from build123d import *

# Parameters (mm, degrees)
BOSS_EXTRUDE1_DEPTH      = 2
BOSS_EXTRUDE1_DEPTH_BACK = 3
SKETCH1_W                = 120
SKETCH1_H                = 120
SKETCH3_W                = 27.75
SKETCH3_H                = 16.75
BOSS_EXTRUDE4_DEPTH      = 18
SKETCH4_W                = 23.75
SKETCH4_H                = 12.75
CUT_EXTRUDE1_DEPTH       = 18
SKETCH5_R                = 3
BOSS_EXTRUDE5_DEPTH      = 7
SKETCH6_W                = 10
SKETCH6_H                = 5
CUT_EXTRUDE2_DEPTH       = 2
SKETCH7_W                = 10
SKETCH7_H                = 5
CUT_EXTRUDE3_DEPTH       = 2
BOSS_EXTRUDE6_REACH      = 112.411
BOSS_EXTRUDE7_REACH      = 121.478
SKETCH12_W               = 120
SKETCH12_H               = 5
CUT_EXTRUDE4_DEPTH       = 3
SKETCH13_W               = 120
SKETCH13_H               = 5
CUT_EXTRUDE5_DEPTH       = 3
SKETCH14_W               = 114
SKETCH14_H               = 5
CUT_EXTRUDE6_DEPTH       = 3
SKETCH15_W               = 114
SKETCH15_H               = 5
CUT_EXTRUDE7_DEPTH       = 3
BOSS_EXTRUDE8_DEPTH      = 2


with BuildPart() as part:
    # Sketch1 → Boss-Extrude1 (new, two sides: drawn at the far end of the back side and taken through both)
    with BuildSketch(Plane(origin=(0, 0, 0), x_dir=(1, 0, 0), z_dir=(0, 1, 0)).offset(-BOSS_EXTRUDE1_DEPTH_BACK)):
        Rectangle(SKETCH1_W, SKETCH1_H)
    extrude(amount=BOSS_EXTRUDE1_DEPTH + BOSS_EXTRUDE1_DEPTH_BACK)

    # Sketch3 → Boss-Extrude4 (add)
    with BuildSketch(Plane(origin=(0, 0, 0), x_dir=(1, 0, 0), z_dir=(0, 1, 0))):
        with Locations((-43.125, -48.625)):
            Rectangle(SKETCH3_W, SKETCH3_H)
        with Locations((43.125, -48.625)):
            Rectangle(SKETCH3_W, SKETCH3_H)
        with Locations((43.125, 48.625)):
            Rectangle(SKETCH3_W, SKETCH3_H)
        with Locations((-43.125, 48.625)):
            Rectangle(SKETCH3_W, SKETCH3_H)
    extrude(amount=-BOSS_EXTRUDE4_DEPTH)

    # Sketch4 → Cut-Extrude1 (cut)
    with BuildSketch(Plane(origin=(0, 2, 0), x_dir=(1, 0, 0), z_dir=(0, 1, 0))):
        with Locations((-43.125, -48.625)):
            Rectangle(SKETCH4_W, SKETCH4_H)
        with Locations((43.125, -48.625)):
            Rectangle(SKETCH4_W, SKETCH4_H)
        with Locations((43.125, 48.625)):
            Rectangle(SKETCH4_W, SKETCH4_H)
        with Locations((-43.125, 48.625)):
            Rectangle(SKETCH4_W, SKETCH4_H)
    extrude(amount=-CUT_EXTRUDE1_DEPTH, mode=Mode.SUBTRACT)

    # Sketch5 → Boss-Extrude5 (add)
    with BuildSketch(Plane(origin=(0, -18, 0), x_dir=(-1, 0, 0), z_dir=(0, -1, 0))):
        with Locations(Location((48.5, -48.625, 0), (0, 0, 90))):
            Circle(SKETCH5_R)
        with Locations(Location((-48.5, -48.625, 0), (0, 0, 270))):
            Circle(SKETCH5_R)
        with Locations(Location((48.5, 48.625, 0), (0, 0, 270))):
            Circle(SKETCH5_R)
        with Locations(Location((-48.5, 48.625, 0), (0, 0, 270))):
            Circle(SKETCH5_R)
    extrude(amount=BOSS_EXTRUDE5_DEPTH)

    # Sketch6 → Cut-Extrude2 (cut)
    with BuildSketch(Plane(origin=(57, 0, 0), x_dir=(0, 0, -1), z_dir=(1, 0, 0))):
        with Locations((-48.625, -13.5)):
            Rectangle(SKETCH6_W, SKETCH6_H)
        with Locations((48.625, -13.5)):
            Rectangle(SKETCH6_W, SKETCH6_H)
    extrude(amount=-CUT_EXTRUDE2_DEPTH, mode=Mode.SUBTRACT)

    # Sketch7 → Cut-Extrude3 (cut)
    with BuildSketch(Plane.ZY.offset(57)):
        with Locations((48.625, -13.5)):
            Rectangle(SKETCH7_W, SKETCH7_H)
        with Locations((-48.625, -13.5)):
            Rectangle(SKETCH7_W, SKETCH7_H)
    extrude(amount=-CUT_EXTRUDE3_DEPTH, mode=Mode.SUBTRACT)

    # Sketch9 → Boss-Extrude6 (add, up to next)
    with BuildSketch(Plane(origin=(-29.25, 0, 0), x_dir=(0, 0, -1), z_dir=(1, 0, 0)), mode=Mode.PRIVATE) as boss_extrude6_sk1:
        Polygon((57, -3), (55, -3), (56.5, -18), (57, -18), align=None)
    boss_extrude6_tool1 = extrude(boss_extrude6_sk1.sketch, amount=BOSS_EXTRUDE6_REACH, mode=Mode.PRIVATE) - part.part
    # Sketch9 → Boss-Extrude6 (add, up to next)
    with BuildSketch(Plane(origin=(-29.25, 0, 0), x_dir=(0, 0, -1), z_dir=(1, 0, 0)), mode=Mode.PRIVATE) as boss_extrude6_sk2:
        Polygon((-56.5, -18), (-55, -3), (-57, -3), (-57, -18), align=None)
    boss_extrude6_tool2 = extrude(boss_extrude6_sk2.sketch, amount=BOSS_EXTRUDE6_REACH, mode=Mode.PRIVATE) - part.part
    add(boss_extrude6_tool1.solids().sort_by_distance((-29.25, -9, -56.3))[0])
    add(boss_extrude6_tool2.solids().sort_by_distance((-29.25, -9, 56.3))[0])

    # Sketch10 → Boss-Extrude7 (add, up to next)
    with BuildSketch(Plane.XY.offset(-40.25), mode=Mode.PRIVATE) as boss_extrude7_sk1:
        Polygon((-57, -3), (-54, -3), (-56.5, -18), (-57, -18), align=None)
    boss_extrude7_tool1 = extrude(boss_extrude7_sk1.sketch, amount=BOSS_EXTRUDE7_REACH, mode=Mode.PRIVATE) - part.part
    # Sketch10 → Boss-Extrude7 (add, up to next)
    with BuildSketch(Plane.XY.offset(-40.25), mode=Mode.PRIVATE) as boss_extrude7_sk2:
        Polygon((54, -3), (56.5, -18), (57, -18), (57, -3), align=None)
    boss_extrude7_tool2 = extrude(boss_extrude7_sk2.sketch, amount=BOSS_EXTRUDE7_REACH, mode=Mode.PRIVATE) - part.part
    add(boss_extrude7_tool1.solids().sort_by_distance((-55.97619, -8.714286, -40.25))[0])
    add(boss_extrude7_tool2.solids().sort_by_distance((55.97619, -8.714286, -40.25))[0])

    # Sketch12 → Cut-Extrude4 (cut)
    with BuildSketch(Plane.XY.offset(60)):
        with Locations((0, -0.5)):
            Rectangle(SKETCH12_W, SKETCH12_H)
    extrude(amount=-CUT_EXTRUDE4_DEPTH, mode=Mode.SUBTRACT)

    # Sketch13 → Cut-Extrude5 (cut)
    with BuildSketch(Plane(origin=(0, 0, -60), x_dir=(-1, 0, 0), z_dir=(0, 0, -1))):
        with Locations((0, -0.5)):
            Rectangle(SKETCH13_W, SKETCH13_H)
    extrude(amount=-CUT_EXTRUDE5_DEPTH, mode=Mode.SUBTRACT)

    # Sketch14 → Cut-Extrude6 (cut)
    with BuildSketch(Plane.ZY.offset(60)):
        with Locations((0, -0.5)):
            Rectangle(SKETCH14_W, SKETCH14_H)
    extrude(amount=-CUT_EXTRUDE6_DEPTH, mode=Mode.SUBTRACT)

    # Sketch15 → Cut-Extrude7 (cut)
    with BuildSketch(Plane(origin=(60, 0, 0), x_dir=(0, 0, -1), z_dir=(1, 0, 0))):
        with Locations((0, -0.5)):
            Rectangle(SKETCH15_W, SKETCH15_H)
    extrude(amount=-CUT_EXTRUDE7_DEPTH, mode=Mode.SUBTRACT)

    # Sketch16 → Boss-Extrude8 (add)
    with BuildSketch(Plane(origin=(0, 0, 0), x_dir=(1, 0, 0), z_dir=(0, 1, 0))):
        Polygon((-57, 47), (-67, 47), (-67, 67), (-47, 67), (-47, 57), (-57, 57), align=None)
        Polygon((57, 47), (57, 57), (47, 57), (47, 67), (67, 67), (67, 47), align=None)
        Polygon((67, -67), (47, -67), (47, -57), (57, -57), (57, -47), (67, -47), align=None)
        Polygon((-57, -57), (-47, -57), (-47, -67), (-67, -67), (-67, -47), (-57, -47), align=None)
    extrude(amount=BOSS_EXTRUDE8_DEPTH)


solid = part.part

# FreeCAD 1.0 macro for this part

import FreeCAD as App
import Part
import Sketcher
from FreeCAD import Vector


def add_polygon(sketch, points):
    """Adds a closed chain of lines whose ends are joined by coincident constraints."""
    first, n = sketch.GeometryCount, len(points)
    for a, b in zip(points, points[1:] + points[:1]):
        sketch.addGeometry(Part.LineSegment(App.Vector(*a, 0), App.Vector(*b, 0)), False)
    for i in range(n):
        sketch.addConstraint(Sketcher.Constraint("Coincident", first + i, 2, first + (i + 1) % n, 1))

doc = App.newDocument("Part")
body = doc.addObject("PartDesign::Body", "Body")

sketch1 = body.newObject("Sketcher::SketchObject", "Sketch")
sketch1.AttachmentSupport = (doc.getObject("XZ_Plane"), [""])
sketch1.MapMode = "FlatFace"
add_polygon(sketch1, [(-60, -60), (-60, 60), (60, 60), (60, -60)])
sketch1.addConstraint([
    Sketcher.Constraint("Vertical", 0),
    Sketcher.Constraint("Horizontal", 1),
    Sketcher.Constraint("Vertical", 2),
    Sketcher.Constraint("Horizontal", 3),
    Sketcher.Constraint("Symmetric", 0, 2, 2, 2, -1, 1),
    Sketcher.Constraint("Equal", 3, 0),
    Sketcher.Constraint("DistanceX", 1, 1, 1, 2, 120.0),
])
pad1 = body.newObject("PartDesign::Pad", "Pad")
pad1.Profile = sketch1
pad1.Type = "TwoLengths"
pad1.Length = 2
pad1.Length2 = 3
pad1.Reversed = True

sketch2 = body.newObject("Sketcher::SketchObject", "Sketch001")
sketch2.AttachmentSupport = (doc.getObject("XZ_Plane"), [""])
sketch2.MapMode = "FlatFace"
add_polygon(sketch2, [(-57, 40), (-57, 57), (-29, 57), (-29, 40)])
add_polygon(sketch2, [(29, 40), (29, 57), (57, 57), (57, 40)])
add_polygon(sketch2, [(29, -57), (29, -40), (57, -40), (57, -57)])
add_polygon(sketch2, [(-57, -57), (-57, -40), (-29, -40), (-29, -57)])
sketch2.addConstraint([
    Sketcher.Constraint("Vertical", 0),
    Sketcher.Constraint("Horizontal", 1),
    Sketcher.Constraint("Vertical", 2),
    Sketcher.Constraint("Horizontal", 3),
    Sketcher.Constraint("Vertical", 4),
    Sketcher.Constraint("Horizontal", 5),
    Sketcher.Constraint("Vertical", 6),
    Sketcher.Constraint("Horizontal", 7),
    Sketcher.Constraint("Vertical", 8),
    Sketcher.Constraint("Horizontal", 9),
    Sketcher.Constraint("Vertical", 10),
    Sketcher.Constraint("Horizontal", 11),
    Sketcher.Constraint("Vertical", 12),
    Sketcher.Constraint("Horizontal", 13),
    Sketcher.Constraint("Vertical", 14),
    Sketcher.Constraint("Horizontal", 15),
    Sketcher.Constraint("Symmetric", 2, 2, 8, 2, -1, 1),
    Sketcher.Constraint("Symmetric", 0, 2, 10, 2, -1, 1),
    Sketcher.Constraint("Symmetric", 6, 2, 12, 2, -1, 1),
    Sketcher.Constraint("Symmetric", 4, 2, 14, 2, -1, 1),
    Sketcher.Constraint("Symmetric", 1, 2, 4, 2, -2),
    Sketcher.Constraint("Symmetric", 3, 2, 6, 2, -2),
    Sketcher.Constraint("DistanceX", 0, 2, -1, 1, 57.0),
    Sketcher.Constraint("DistanceY", -1, 1, 0, 2, 57.0),
    Sketcher.Constraint("DistanceX", 1, 1, 1, 2, 27.75),
    Sketcher.Constraint("DistanceY", 0, 1, 0, 2, 16.75),
])
pad2 = body.newObject("PartDesign::Pad", "Pad001")
pad2.Profile = sketch2
pad2.Length = 18

sketch3 = body.newObject("Sketcher::SketchObject", "Sketch002")
sketch3.AttachmentSupport = (doc.getObject("XZ_Plane"), [""])
sketch3.MapMode = "FlatFace"
sketch3.AttachmentOffset = App.Placement(Vector(0, 0, -2), App.Rotation())
add_polygon(sketch3, [(-55, 42), (-55, 55), (-31, 55), (-31, 42)])
add_polygon(sketch3, [(31, 42), (31, 55), (55, 55), (55, 42)])
add_polygon(sketch3, [(31, -55), (31, -42), (55, -42), (55, -55)])
add_polygon(sketch3, [(-55, -55), (-55, -42), (-31, -42), (-31, -55)])
sketch3.addConstraint([
    Sketcher.Constraint("Vertical", 0),
    Sketcher.Constraint("Horizontal", 1),
    Sketcher.Constraint("Vertical", 2),
    Sketcher.Constraint("Horizontal", 3),
    Sketcher.Constraint("Vertical", 4),
    Sketcher.Constraint("Horizontal", 5),
    Sketcher.Constraint("Vertical", 6),
    Sketcher.Constraint("Horizontal", 7),
    Sketcher.Constraint("Vertical", 8),
    Sketcher.Constraint("Horizontal", 9),
    Sketcher.Constraint("Vertical", 10),
    Sketcher.Constraint("Horizontal", 11),
    Sketcher.Constraint("Vertical", 12),
    Sketcher.Constraint("Horizontal", 13),
    Sketcher.Constraint("Vertical", 14),
    Sketcher.Constraint("Horizontal", 15),
    Sketcher.Constraint("Symmetric", 2, 2, 8, 2, -1, 1),
    Sketcher.Constraint("Symmetric", 0, 2, 10, 2, -1, 1),
    Sketcher.Constraint("Symmetric", 6, 2, 12, 2, -1, 1),
    Sketcher.Constraint("Symmetric", 4, 2, 14, 2, -1, 1),
    Sketcher.Constraint("Symmetric", 1, 2, 4, 2, -2),
    Sketcher.Constraint("Symmetric", 3, 2, 6, 2, -2),
    Sketcher.Constraint("DistanceX", 0, 2, -1, 1, 55.0),
    Sketcher.Constraint("DistanceY", -1, 1, 0, 2, 55.0),
    Sketcher.Constraint("DistanceX", 1, 1, 1, 2, 23.75),
    Sketcher.Constraint("DistanceY", 0, 1, 0, 2, 12.75),
])
pocket1 = body.newObject("PartDesign::Pocket", "Pocket")
pocket1.Profile = sketch3
pocket1.Length = 18
pocket1.Reversed = True

sketch4 = body.newObject("Sketcher::SketchObject", "Sketch003")
sketch4.AttachmentSupport = (doc.getObject("XZ_Plane"), [""])
sketch4.MapMode = "FlatFace"
sketch4.AttachmentOffset = App.Placement(Vector(0, 0, 18), App.Rotation())
sketch4.addGeometry([
    Part.Circle(Vector(-48.5, 48.6, 0), Vector(0, 0, 1), 3),
    Part.Circle(Vector(48.5, 48.6, 0), Vector(0, 0, 1), 3),
    Part.Circle(Vector(-48.5, -48.6, 0), Vector(0, 0, 1), 3),
    Part.Circle(Vector(48.5, -48.6, 0), Vector(0, 0, 1), 3),
], False)
sketch4.addConstraint([
    Sketcher.Constraint("Equal", 0, 1),
    Sketcher.Constraint("Equal", 1, 2),
    Sketcher.Constraint("Equal", 2, 3),
    Sketcher.Constraint("Symmetric", 1, 3, 2, 3, -1, 1),
    Sketcher.Constraint("Symmetric", 0, 3, 3, 3, -1, 1),
    Sketcher.Constraint("Symmetric", 0, 3, 1, 3, -2),
    Sketcher.Constraint("Diameter", 0, 6.0),
    Sketcher.Constraint("DistanceX", 0, 3, 1, 3, 97.0),
    Sketcher.Constraint("DistanceY", 2, 3, 0, 3, 97.25),
])
pad3 = body.newObject("PartDesign::Pad", "Pad002")
pad3.Profile = sketch4
pad3.Length = 7

sketch5 = body.newObject("Sketcher::SketchObject", "Sketch004")
sketch5.AttachmentSupport = (doc.getObject("YZ_Plane"), [""])
sketch5.MapMode = "FlatFace"
sketch5.AttachmentOffset = App.Placement(Vector(0, 0, 57), App.Rotation())
add_polygon(sketch5, [(-11, 54), (-16, 54), (-16, 44), (-11, 44)])
add_polygon(sketch5, [(-11, -44), (-16, -44), (-16, -54), (-11, -54)])
sketch5.addConstraint([
    Sketcher.Constraint("Horizontal", 0),
    Sketcher.Constraint("Vertical", 1),
    Sketcher.Constraint("Horizontal", 2),
    Sketcher.Constraint("Vertical", 3),
    Sketcher.Constraint("Horizontal", 4),
    Sketcher.Constraint("Vertical", 5),
    Sketcher.Constraint("Horizontal", 6),
    Sketcher.Constraint("Vertical", 7),
    Sketcher.Constraint("Symmetric", 1, 2, 4, 2, -1),
    Sketcher.Constraint("Symmetric", 3, 2, 6, 2, -1),
    Sketcher.Constraint("DistanceX", 0, 2, 0, 1, 5.0),
    Sketcher.Constraint("DistanceY", 1, 2, 1, 1, 10.0),
    Sketcher.Constraint("DistanceX", 0, 2, -1, 1, 16.0),
    Sketcher.Constraint("DistanceY", 4, 2, 1, 2, 87.25),
])
pocket2 = body.newObject("PartDesign::Pocket", "Pocket001")
pocket2.Profile = sketch5
pocket2.Length = 2

sketch6 = body.newObject("Sketcher::SketchObject", "Sketch005")
sketch6.AttachmentSupport = (doc.getObject("YZ_Plane"), [""])
sketch6.MapMode = "FlatFace"
sketch6.AttachmentOffset = App.Placement(Vector(0, 0, -57), App.Rotation())
add_polygon(sketch6, [(-11, 44), (-16, 44), (-16, 54), (-11, 54)])
add_polygon(sketch6, [(-11, -54), (-16, -54), (-16, -44), (-11, -44)])
sketch6.addConstraint([
    Sketcher.Constraint("Horizontal", 0),
    Sketcher.Constraint("Vertical", 1),
    Sketcher.Constraint("Horizontal", 2),
    Sketcher.Constraint("Vertical", 3),
    Sketcher.Constraint("Horizontal", 4),
    Sketcher.Constraint("Vertical", 5),
    Sketcher.Constraint("Horizontal", 6),
    Sketcher.Constraint("Vertical", 7),
    Sketcher.Constraint("Symmetric", 1, 2, 4, 2, -1),
    Sketcher.Constraint("Symmetric", 3, 2, 6, 2, -1),
    Sketcher.Constraint("DistanceX", 0, 2, 0, 1, 5.0),
    Sketcher.Constraint("DistanceY", 1, 1, 1, 2, 10.0),
    Sketcher.Constraint("DistanceX", 0, 2, -1, 1, 16.0),
    Sketcher.Constraint("DistanceY", 4, 2, 0, 2, 97.25),
])
pocket3 = body.newObject("PartDesign::Pocket", "Pocket002")
pocket3.Profile = sketch6
pocket3.Length = 2
pocket3.Reversed = True

sketch7 = body.newObject("Sketcher::SketchObject", "Sketch006")
sketch7.AttachmentSupport = (doc.getObject("YZ_Plane"), [""])
sketch7.MapMode = "FlatFace"
sketch7.AttachmentOffset = App.Placement(Vector(0, 0, -29.25), App.Rotation())
add_polygon(sketch7, [(-3, -57), (-3, -55), (-18, -56.5), (-18, -57)])
sketch7.addConstraint([
    Sketcher.Constraint("Vertical", 0),
    Sketcher.Constraint("Vertical", 2),
    Sketcher.Constraint("Horizontal", 3),
    Sketcher.Constraint("DistanceX", 3, 1, 3, 2, 15.0),
    Sketcher.Constraint("DistanceY", 0, 1, 0, 2, 2.0),
    Sketcher.Constraint("DistanceY", 2, 2, 2, 1, 0.5),
    Sketcher.Constraint("DistanceX", 0, 2, -1, 1, 3.0),
    Sketcher.Constraint("DistanceY", 0, 2, -1, 1, 55.0),
])
pad4 = body.newObject("PartDesign::Pad", "Pad003")
pad4.Profile = sketch7
pad4.Type = "UpToFirst"

sketch8 = body.newObject("Sketcher::SketchObject", "Sketch007")
sketch8.AttachmentSupport = (doc.getObject("YZ_Plane"), [""])
sketch8.MapMode = "FlatFace"
sketch8.AttachmentOffset = App.Placement(Vector(0, 0, -29.25), App.Rotation())
add_polygon(sketch8, [(-18, 56.5), (-3, 55), (-3, 57), (-18, 57)])
sketch8.addConstraint([
    Sketcher.Constraint("Vertical", 1),
    Sketcher.Constraint("Horizontal", 2),
    Sketcher.Constraint("Vertical", 3),
    Sketcher.Constraint("DistanceX", 2, 2, 2, 1, 15.0),
    Sketcher.Constraint("DistanceY", 1, 1, 1, 2, 2.0),
    Sketcher.Constraint("DistanceY", 3, 2, 3, 1, 0.5),
    Sketcher.Constraint("DistanceX", 0, 2, -1, 1, 3.0),
    Sketcher.Constraint("DistanceY", -1, 1, 0, 2, 55.0),
])
pad5 = body.newObject("PartDesign::Pad", "Pad004")
pad5.Profile = sketch8
pad5.Type = "UpToFirst"

sketch9 = body.newObject("Sketcher::SketchObject", "Sketch008")
sketch9.AttachmentSupport = (doc.getObject("XY_Plane"), [""])
sketch9.MapMode = "FlatFace"
sketch9.AttachmentOffset = App.Placement(Vector(0, 0, -40.25), App.Rotation())
add_polygon(sketch9, [(-54, -3), (-57, -3), (-57, -18), (-56.5, -18)])
sketch9.addConstraint([
    Sketcher.Constraint("Horizontal", 0),
    Sketcher.Constraint("Vertical", 1),
    Sketcher.Constraint("Horizontal", 2),
    Sketcher.Constraint("DistanceX", 0, 2, 0, 1, 3.0),
    Sketcher.Constraint("DistanceY", 1, 2, 1, 1, 15.0),
    Sketcher.Constraint("DistanceX", 2, 1, 2, 2, 0.5),
    Sketcher.Constraint("DistanceX", 0, 2, -1, 1, 57.0),
    Sketcher.Constraint("DistanceY", 0, 2, -1, 1, 3.0),
])
pad6 = body.newObject("PartDesign::Pad", "Pad005")
pad6.Profile = sketch9
pad6.Type = "UpToFirst"

sketch10 = body.newObject("Sketcher::SketchObject", "Sketch009")
sketch10.AttachmentSupport = (doc.getObject("XY_Plane"), [""])
sketch10.MapMode = "FlatFace"
sketch10.AttachmentOffset = App.Placement(Vector(0, 0, -40.25), App.Rotation())
add_polygon(sketch10, [(54, -3), (56.5, -18), (57, -18), (57, -3)])
sketch10.addConstraint([
    Sketcher.Constraint("Horizontal", 1),
    Sketcher.Constraint("Vertical", 2),
    Sketcher.Constraint("Horizontal", 3),
    Sketcher.Constraint("DistanceX", 3, 2, 3, 1, 3.0),
    Sketcher.Constraint("DistanceY", 2, 1, 2, 2, 15.0),
    Sketcher.Constraint("DistanceX", 1, 1, 1, 2, 0.5),
    Sketcher.Constraint("DistanceY", 0, 2, -1, 1, 18.0),
    Sketcher.Constraint("DistanceX", -1, 1, 1, 2, 57.0),
])
pad7 = body.newObject("PartDesign::Pad", "Pad006")
pad7.Profile = sketch10
pad7.Type = "UpToFirst"

sketch11 = body.newObject("Sketcher::SketchObject", "Sketch010")
sketch11.AttachmentSupport = (doc.getObject("XY_Plane"), [""])
sketch11.MapMode = "FlatFace"
sketch11.AttachmentOffset = App.Placement(Vector(0, 0, 60), App.Rotation())
add_polygon(sketch11, [(-60, 2), (-60, -3), (60, -3), (60, 2)])
sketch11.addConstraint([
    Sketcher.Constraint("Vertical", 0),
    Sketcher.Constraint("Horizontal", 1),
    Sketcher.Constraint("Vertical", 2),
    Sketcher.Constraint("Horizontal", 3),
    Sketcher.Constraint("DistanceX", 1, 1, 1, 2, 120.0),
    Sketcher.Constraint("DistanceY", 0, 2, 0, 1, 5.0),
    Sketcher.Constraint("DistanceX", 0, 2, -1, 1, 60.0),
    Sketcher.Constraint("DistanceY", 0, 2, -1, 1, 3.0),
])
pocket4 = body.newObject("PartDesign::Pocket", "Pocket003")
pocket4.Profile = sketch11
pocket4.Length = 3

sketch12 = body.newObject("Sketcher::SketchObject", "Sketch011")
sketch12.AttachmentSupport = (doc.getObject("XY_Plane"), [""])
sketch12.MapMode = "FlatFace"
sketch12.AttachmentOffset = App.Placement(Vector(0, 0, -60), App.Rotation())
add_polygon(sketch12, [(60, 2), (60, -3), (-60, -3), (-60, 2)])
sketch12.addConstraint([
    Sketcher.Constraint("Vertical", 0),
    Sketcher.Constraint("Horizontal", 1),
    Sketcher.Constraint("Vertical", 2),
    Sketcher.Constraint("Horizontal", 3),
    Sketcher.Constraint("DistanceX", 1, 2, 1, 1, 120.0),
    Sketcher.Constraint("DistanceY", 0, 2, 0, 1, 5.0),
    Sketcher.Constraint("DistanceX", -1, 1, 0, 2, 60.0),
    Sketcher.Constraint("DistanceY", 0, 2, -1, 1, 3.0),
])
pocket5 = body.newObject("PartDesign::Pocket", "Pocket004")
pocket5.Profile = sketch12
pocket5.Length = 3
pocket5.Reversed = True

sketch13 = body.newObject("Sketcher::SketchObject", "Sketch012")
sketch13.AttachmentSupport = (doc.getObject("YZ_Plane"), [""])
sketch13.MapMode = "FlatFace"
sketch13.AttachmentOffset = App.Placement(Vector(0, 0, -60), App.Rotation())
add_polygon(sketch13, [(2, -57), (-3, -57), (-3, 57), (2, 57)])
sketch13.addConstraint([
    Sketcher.Constraint("Horizontal", 0),
    Sketcher.Constraint("Vertical", 1),
    Sketcher.Constraint("Horizontal", 2),
    Sketcher.Constraint("Vertical", 3),
    Sketcher.Constraint("DistanceX", 0, 2, 0, 1, 5.0),
    Sketcher.Constraint("DistanceY", 1, 1, 1, 2, 114.0),
    Sketcher.Constraint("DistanceX", 0, 2, -1, 1, 3.0),
    Sketcher.Constraint("DistanceY", 0, 2, -1, 1, 57.0),
])
pocket6 = body.newObject("PartDesign::Pocket", "Pocket005")
pocket6.Profile = sketch13
pocket6.Length = 3
pocket6.Reversed = True

sketch14 = body.newObject("Sketcher::SketchObject", "Sketch013")
sketch14.AttachmentSupport = (doc.getObject("YZ_Plane"), [""])
sketch14.MapMode = "FlatFace"
sketch14.AttachmentOffset = App.Placement(Vector(0, 0, 60), App.Rotation())
add_polygon(sketch14, [(2, 57), (-3, 57), (-3, -57), (2, -57)])
sketch14.addConstraint([
    Sketcher.Constraint("Horizontal", 0),
    Sketcher.Constraint("Vertical", 1),
    Sketcher.Constraint("Horizontal", 2),
    Sketcher.Constraint("Vertical", 3),
    Sketcher.Constraint("DistanceX", 0, 2, 0, 1, 5.0),
    Sketcher.Constraint("DistanceY", 1, 2, 1, 1, 114.0),
    Sketcher.Constraint("DistanceX", 0, 2, -1, 1, 3.0),
    Sketcher.Constraint("DistanceY", -1, 1, 0, 2, 57.0),
])
pocket7 = body.newObject("PartDesign::Pocket", "Pocket006")
pocket7.Profile = sketch14
pocket7.Length = 3

sketch15 = body.newObject("Sketcher::SketchObject", "Sketch014")
sketch15.AttachmentSupport = (doc.getObject("XZ_Plane"), [""])
sketch15.MapMode = "FlatFace"
add_polygon(sketch15, [(-67, -47), (-57, -47), (-57, -57), (-47, -57), (-47, -67), (-67, -67)])
add_polygon(sketch15, [(57, -57), (57, -47), (67, -47), (67, -67), (47, -67), (47, -57)])
add_polygon(sketch15, [(47, 67), (67, 67), (67, 47), (57, 47), (57, 57), (47, 57)])
add_polygon(sketch15, [(-47, 57), (-57, 57), (-57, 47), (-67, 47), (-67, 67), (-47, 67)])
sketch15.addConstraint([
    Sketcher.Constraint("Horizontal", 0),
    Sketcher.Constraint("Vertical", 1),
    Sketcher.Constraint("Horizontal", 2),
    Sketcher.Constraint("Vertical", 3),
    Sketcher.Constraint("Horizontal", 4),
    Sketcher.Constraint("Vertical", 5),
    Sketcher.Constraint("Vertical", 6),
    Sketcher.Constraint("Horizontal", 7),
    Sketcher.Constraint("Vertical", 8),
    Sketcher.Constraint("Horizontal", 9),
    Sketcher.Constraint("Vertical", 10),
    Sketcher.Constraint("Horizontal", 11),
    Sketcher.Constraint("Horizontal", 12),
    Sketcher.Constraint("Vertical", 13),
    Sketcher.Constraint("Horizontal", 14),
    Sketcher.Constraint("Vertical", 15),
    Sketcher.Constraint("Horizontal", 16),
    Sketcher.Constraint("Vertical", 17),
    Sketcher.Constraint("Horizontal", 18),
    Sketcher.Constraint("Vertical", 19),
    Sketcher.Constraint("Horizontal", 20),
    Sketcher.Constraint("Vertical", 21),
    Sketcher.Constraint("Horizontal", 22),
    Sketcher.Constraint("Vertical", 23),
    Sketcher.Constraint("Symmetric", 4, 2, 12, 2, -1, 1),
    Sketcher.Constraint("Symmetric", 0, 2, 14, 2, -1, 1),
    Sketcher.Constraint("Symmetric", 2, 2, 16, 2, -1, 1),
    Sketcher.Constraint("Symmetric", 11, 2, 18, 2, -1, 1),
    Sketcher.Constraint("Symmetric", 7, 2, 20, 2, -1, 1),
    Sketcher.Constraint("Symmetric", 9, 2, 22, 2, -1, 1),
    Sketcher.Constraint("Symmetric", 0, 2, 6, 2, -2),
    Sketcher.Constraint("Symmetric", 4, 2, 8, 2, -2),
    Sketcher.Constraint("Symmetric", 2, 2, 10, 2, -2),
    Sketcher.Constraint("Equal", 0, 2),
    Sketcher.Constraint("Equal", 20, 1),
    Sketcher.Constraint("Equal", 1, 3),
    Sketcher.Constraint("DistanceX", 0, 1, 0, 2, 10.0),
    Sketcher.Constraint("DistanceX", 0, 2, -1, 1, 57.0),
    Sketcher.Constraint("DistanceY", 0, 2, -1, 1, 47.0),
])
pad8 = body.newObject("PartDesign::Pad", "Pad007")
pad8.Profile = sketch15
pad8.Length = 2
pad8.Reversed = True

doc.recompute()
